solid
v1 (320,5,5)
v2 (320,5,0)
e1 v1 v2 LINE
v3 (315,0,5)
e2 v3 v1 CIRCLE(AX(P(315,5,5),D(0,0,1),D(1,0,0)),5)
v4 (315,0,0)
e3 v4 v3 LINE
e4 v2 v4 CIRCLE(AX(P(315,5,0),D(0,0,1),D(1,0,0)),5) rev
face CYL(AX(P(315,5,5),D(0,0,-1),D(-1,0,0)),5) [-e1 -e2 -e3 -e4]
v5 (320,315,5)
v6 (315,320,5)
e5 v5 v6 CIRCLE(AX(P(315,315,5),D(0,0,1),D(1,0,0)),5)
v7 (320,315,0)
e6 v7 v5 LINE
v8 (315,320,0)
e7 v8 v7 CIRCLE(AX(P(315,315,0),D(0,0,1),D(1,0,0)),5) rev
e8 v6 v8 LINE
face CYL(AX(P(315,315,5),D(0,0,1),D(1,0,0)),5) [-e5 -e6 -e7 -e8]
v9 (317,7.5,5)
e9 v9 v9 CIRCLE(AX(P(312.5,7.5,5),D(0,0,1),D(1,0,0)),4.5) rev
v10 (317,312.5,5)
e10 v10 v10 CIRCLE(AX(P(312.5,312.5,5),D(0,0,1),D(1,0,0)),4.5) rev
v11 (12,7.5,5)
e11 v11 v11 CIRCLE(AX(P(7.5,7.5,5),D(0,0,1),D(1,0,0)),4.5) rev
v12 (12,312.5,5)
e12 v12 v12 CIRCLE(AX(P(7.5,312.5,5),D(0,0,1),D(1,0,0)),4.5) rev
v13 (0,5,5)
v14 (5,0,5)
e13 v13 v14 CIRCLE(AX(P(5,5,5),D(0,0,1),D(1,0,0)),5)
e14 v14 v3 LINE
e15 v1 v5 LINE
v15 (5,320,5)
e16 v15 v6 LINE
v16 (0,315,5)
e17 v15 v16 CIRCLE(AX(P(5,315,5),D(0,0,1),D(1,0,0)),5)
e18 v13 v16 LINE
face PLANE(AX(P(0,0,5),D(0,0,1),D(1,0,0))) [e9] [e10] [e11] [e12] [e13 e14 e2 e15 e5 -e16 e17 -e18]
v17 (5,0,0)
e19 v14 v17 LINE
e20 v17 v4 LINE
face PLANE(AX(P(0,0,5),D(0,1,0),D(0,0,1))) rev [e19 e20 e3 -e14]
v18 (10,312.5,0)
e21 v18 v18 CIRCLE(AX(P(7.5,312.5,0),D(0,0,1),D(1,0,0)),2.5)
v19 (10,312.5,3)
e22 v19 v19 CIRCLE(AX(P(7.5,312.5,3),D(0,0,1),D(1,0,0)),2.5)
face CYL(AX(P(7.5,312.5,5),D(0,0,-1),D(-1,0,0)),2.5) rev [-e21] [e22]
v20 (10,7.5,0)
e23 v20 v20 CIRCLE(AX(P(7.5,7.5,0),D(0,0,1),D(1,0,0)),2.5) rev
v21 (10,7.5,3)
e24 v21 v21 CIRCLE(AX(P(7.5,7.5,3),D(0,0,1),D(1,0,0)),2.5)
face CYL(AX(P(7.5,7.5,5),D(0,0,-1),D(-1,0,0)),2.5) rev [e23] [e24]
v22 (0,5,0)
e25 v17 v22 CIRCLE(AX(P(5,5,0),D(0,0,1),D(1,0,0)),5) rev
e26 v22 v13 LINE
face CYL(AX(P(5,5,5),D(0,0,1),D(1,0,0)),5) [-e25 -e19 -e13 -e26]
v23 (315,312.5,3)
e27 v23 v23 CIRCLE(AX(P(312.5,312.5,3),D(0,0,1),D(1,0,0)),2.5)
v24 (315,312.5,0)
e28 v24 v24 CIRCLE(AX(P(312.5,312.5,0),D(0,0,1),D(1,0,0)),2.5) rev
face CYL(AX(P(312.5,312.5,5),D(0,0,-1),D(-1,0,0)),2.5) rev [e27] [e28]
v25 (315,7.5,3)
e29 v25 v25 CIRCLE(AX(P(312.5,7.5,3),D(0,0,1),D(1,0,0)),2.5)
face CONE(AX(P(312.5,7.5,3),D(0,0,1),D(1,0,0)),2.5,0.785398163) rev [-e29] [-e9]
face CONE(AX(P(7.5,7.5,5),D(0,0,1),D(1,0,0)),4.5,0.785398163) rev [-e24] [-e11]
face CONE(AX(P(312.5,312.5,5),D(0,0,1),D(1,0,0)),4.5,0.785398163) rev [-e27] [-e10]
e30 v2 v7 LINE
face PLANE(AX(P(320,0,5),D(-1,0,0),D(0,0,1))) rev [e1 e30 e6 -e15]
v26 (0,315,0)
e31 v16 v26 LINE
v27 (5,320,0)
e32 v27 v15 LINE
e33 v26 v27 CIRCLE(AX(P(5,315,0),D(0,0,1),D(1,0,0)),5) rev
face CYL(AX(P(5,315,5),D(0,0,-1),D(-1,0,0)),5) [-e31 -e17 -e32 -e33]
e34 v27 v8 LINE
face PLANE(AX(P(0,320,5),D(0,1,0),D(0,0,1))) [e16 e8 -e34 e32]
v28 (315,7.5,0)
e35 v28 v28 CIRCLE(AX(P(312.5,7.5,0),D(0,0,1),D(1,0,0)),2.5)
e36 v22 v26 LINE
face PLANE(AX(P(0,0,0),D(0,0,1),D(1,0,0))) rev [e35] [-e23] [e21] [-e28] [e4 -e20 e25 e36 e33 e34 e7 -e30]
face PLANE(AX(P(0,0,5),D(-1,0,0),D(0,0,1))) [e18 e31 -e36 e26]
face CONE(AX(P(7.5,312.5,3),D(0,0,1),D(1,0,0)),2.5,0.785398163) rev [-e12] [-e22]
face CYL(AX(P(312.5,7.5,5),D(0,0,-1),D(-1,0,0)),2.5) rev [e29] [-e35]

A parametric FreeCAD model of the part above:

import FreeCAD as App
import Part
import Sketcher


def edges_at(feature, points):
    """Names of the edges that pass closest to the given points."""
    edges = feature.Shape.Edges
    near = lambda p: min(range(len(edges)), key=lambda i: edges[i].distToShape(Part.Vertex(*p))[0])
    return sorted({f"Edge{near(p) + 1}" for p in points})


def add_polygon(sketch, points):
    """Adds a closed chain of lines whose ends are joined by coincident constraints."""
    first, n = sketch.GeometryCount, len(points)
    for a, b in zip(points, points[1:] + points[:1]):
        sketch.addGeometry(Part.LineSegment(App.Vector(*a, 0), App.Vector(*b, 0)), False)
    for i in range(n):
        sketch.addConstraint(Sketcher.Constraint("Coincident", first + i, 2, first + (i + 1) % n, 1))

doc = App.newDocument("Part")
body = doc.addObject("PartDesign::Body", "Body")

sketch1 = body.newObject("Sketcher::SketchObject", "Sketch")
sketch1.AttachmentSupport = (doc.getObject("XY_Plane"), [""])
sketch1.MapMode = "FlatFace"
add_polygon(sketch1, [(0, 320), (0, 0), (320, 0), (320, 320)])
sketch1.addGeometry(Part.Circle(App.Vector(7.5, 7.5, 0), App.Vector(0, 0, 1), 2.5), False)
sketch1.addGeometry(Part.Circle(App.Vector(312.5, 7.5, 0), App.Vector(0, 0, 1), 2.5), False)
sketch1.addGeometry(Part.Circle(App.Vector(7.5, 312.5, 0), App.Vector(0, 0, 1), 2.5), False)
sketch1.addGeometry(Part.Circle(App.Vector(312.5, 312.5, 0), App.Vector(0, 0, 1), 2.5), False)
sketch1.addConstraint([
    Sketcher.Constraint("Vertical", 0),
    Sketcher.Constraint("Horizontal", 1),
    Sketcher.Constraint("Vertical", 2),
    Sketcher.Constraint("Horizontal", 3),
    Sketcher.Constraint("Coincident", 0, 2, -1, 1),
    Sketcher.Constraint("Equal", 4, 5),
    Sketcher.Constraint("Equal", 5, 6),
    Sketcher.Constraint("Equal", 6, 7),
    Sketcher.Constraint("Horizontal", 4, 3, 5, 3),
    Sketcher.Constraint("Horizontal", 6, 3, 7, 3),
    Sketcher.Constraint("Vertical", 4, 3, 6, 3),
    Sketcher.Constraint("Vertical", 5, 3, 7, 3),
    Sketcher.Constraint("Equal", 3, 0),
    Sketcher.Constraint("Diameter", 4, 5.0),
    Sketcher.Constraint("DistanceX", 1, 1, 1, 2, 320.0),
    Sketcher.Constraint("DistanceX", 4, 3, 5, 3, 305.0),
    Sketcher.Constraint("DistanceY", 4, 3, 6, 3, 305.0),
    Sketcher.Constraint("DistanceX", -1, 1, 4, 3, 7.5),
    Sketcher.Constraint("DistanceY", -1, 1, 4, 3, 7.5),
])
pad1 = body.newObject("PartDesign::Pad", "Pad")
pad1.Profile = sketch1
pad1.Length = 5
doc.recompute()

fillet = body.newObject("PartDesign::Fillet", "Fillet")
fillet.Base = (pad1, edges_at(pad1, [
    (0, 0, 2.5),
    (0, 320, 2.5),
    (320, 320, 2.5),
    (320, 0, 2.5),
]))
fillet.Radius = 5
doc.recompute()

chamfer = body.newObject("PartDesign::Chamfer", "Chamfer")
chamfer.Base = (fillet, edges_at(fillet, [
    (310, 312.5, 5),
    (5, 312.5, 5),
    (5, 7.5, 5),
    (310, 7.5, 5),
]))
chamfer.Size = 2

doc.recompute()
